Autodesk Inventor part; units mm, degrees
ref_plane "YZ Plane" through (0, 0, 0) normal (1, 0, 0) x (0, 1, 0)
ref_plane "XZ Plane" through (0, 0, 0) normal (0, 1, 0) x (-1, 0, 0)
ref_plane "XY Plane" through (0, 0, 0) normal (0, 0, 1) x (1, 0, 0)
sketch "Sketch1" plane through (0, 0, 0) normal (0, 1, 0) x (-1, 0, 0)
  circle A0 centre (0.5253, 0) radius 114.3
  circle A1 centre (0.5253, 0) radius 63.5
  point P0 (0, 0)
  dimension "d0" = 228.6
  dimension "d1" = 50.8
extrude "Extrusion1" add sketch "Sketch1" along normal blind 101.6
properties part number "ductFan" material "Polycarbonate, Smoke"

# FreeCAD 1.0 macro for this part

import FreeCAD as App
import Part
import Sketcher

V = App.Vector
Q = App.Units.Quantity

doc = App.newDocument("Part")
body = doc.addObject("PartDesign::Body", "Body")

sketch1 = body.newObject("Sketcher::SketchObject", "Sketch")
sketch1.AttachmentSupport = (doc.getObject("XZ_Plane"), [""])
sketch1.MapMode = "FlatFace"
sketch1.addGeometry([
    Part.Circle(V(-1, 0, 0), V(0, 0, 1), 114),
    Part.Circle(V(-1, 0, 0), V(0, 0, 1), 64),
], False)
sketch1.addConstraint([
    Sketcher.Constraint("Coincident", 1, 3, 0, 3),
    Sketcher.Constraint("PointOnObject", 0, 3, -1),
    Sketcher.Constraint("Diameter", 0, Q("9 in")),
    Sketcher.Constraint("Diameter", 1, Q("5 in")),
    Sketcher.Constraint("DistanceX", 0, 3, -1, 1, 0.5253),
])
pad1 = body.newObject("PartDesign::Pad", "Pad")
pad1.Profile = sketch1
pad1.Length = Q("4 in")
pad1.Reversed = True

doc.recompute()
